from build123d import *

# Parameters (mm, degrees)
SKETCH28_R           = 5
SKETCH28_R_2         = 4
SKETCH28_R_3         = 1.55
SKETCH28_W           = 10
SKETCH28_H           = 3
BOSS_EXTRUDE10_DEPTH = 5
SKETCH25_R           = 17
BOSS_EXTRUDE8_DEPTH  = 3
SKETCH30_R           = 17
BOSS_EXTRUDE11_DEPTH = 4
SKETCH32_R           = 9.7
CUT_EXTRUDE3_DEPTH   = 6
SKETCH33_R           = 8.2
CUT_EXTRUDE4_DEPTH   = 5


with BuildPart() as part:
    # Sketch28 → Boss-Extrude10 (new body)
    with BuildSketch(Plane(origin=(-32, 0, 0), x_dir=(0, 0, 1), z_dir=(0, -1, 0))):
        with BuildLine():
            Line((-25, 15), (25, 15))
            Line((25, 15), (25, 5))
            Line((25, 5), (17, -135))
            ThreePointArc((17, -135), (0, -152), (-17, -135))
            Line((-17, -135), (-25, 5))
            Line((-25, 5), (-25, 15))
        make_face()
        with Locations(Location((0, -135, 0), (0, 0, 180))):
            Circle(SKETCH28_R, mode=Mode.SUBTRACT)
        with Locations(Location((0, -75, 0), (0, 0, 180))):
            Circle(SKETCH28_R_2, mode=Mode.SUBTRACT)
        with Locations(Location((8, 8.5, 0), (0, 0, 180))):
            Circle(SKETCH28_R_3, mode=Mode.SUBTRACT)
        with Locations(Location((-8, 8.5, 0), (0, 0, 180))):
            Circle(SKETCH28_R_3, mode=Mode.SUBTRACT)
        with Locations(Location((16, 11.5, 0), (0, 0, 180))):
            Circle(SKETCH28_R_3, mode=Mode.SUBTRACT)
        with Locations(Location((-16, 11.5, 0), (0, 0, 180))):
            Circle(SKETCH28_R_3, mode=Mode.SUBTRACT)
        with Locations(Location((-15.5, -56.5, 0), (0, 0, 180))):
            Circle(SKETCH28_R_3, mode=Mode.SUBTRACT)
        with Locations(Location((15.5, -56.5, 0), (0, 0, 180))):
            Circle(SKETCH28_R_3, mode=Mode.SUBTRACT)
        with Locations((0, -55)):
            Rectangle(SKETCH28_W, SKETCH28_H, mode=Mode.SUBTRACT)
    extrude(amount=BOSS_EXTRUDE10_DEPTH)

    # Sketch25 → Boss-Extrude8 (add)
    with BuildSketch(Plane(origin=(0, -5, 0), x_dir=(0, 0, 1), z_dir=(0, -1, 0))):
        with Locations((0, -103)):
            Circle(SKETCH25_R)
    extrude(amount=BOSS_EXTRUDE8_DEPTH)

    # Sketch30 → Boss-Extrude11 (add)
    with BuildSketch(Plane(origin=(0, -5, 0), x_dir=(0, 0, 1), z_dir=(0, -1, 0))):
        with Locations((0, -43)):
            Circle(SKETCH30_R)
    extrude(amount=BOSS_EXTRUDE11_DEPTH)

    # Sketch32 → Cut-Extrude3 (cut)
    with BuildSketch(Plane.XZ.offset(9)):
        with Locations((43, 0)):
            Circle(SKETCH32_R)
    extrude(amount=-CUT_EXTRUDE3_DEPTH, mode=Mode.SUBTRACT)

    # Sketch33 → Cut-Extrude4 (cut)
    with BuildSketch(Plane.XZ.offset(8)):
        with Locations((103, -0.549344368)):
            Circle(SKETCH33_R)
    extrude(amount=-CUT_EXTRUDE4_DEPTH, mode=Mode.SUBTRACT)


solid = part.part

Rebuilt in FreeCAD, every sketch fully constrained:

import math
import FreeCAD as App
import Part
import Sketcher
from FreeCAD import Vector
Q = App.Units.Quantity

doc = App.newDocument("Part")
body = doc.addObject("PartDesign::Body", "Body")

# Sketch on XZ plane
sketch1 = body.newObject("Sketcher::SketchObject", "Sketch")
sketch1.AttachmentSupport = (doc.getObject("XZ_Plane"), [""])
sketch1.MapMode = "FlatFace"
sketch1.addGeometry(Part.LineSegment(Vector(-47, 25, 0), Vector(-47, -25, 0)), False)
sketch1.addGeometry(Part.LineSegment(Vector(-47, -25, 0), Vector(-37, -25, 0)), False)
sketch1.addGeometry(Part.LineSegment(Vector(-37, -25, 0), Vector(103, -17, 0)), False)
sketch1.addGeometry(Part.ArcOfCircle(Part.Circle(Vector(103, 0, 0), Vector(0, 0, 1), 17), math.radians(-90), math.radians(90)), False)
sketch1.addGeometry(Part.LineSegment(Vector(103, 17, 0), Vector(-37, 25, 0)), False)
sketch1.addGeometry(Part.LineSegment(Vector(-37, 25, 0), Vector(-47, 25, 0)), False)
sketch1.addGeometry(Part.Circle(Vector(103, 0, 0), Vector(0, 0, 1), 5), False)
sketch1.addGeometry(Part.Circle(Vector(43, 0, 0), Vector(0, 0, 1), 4), False)
sketch1.addGeometry(Part.Circle(Vector(24.5, 15.5, 0), Vector(0, 0, 1), 1.6), False)
sketch1.addGeometry(Part.Circle(Vector(-43.5, 16, 0), Vector(0, 0, 1), 1.6), False)
sketch1.addGeometry(Part.Circle(Vector(-40.5, 8, 0), Vector(0, 0, 1), 1.6), False)
sketch1.addGeometry(Part.LineSegment(Vector(24.5, -5, 0), Vector(21.5, -5, 0)), False)
sketch1.addGeometry(Part.LineSegment(Vector(21.5, -5, 0), Vector(21.5, 5, 0)), False)
sketch1.addGeometry(Part.LineSegment(Vector(21.5, 5, 0), Vector(24.5, 5, 0)), False)
sketch1.addGeometry(Part.LineSegment(Vector(24.5, 5, 0), Vector(24.5, -5, 0)), False)
sketch1.addGeometry(Part.Circle(Vector(24.5, -15.5, 0), Vector(0, 0, 1), 1.6), False)
sketch1.addGeometry(Part.Circle(Vector(-40.5, -8, 0), Vector(0, 0, 1), 1.6), False)
sketch1.addGeometry(Part.Circle(Vector(-43.5, -16, 0), Vector(0, 0, 1), 1.6), False)
sketch1.addConstraint(Sketcher.Constraint("Coincident", 0, 2, 1, 1))
sketch1.addConstraint(Sketcher.Constraint("Coincident", 1, 2, 2, 1))
sketch1.addConstraint(Sketcher.Constraint("Coincident", 2, 2, 3, 1))
sketch1.addConstraint(Sketcher.Constraint("Coincident", 3, 2, 4, 1))
sketch1.addConstraint(Sketcher.Constraint("Coincident", 4, 2, 5, 1))
sketch1.addConstraint(Sketcher.Constraint("Coincident", 5, 2, 0, 1))
sketch1.addConstraint(Sketcher.Constraint("Coincident", 11, 2, 12, 1))
sketch1.addConstraint(Sketcher.Constraint("Coincident", 12, 2, 13, 1))
sketch1.addConstraint(Sketcher.Constraint("Coincident", 13, 2, 14, 1))
sketch1.addConstraint(Sketcher.Constraint("Coincident", 14, 2, 11, 1))
sketch1.addConstraint(Sketcher.Constraint("Vertical", 0))
sketch1.addConstraint(Sketcher.Constraint("Horizontal", 1))
sketch1.addConstraint(Sketcher.Constraint("Horizontal", 5))
sketch1.addConstraint(Sketcher.Constraint("Horizontal", 11))
sketch1.addConstraint(Sketcher.Constraint("Vertical", 12))
sketch1.addConstraint(Sketcher.Constraint("Horizontal", 13))
sketch1.addConstraint(Sketcher.Constraint("Vertical", 14))
sketch1.addConstraint(Sketcher.Constraint("Coincident", 6, 3, 3, 3))
sketch1.addConstraint(Sketcher.Constraint("Equal", 8, 9))
sketch1.addConstraint(Sketcher.Constraint("Equal", 9, 10))
sketch1.addConstraint(Sketcher.Constraint("Equal", 10, 15))
sketch1.addConstraint(Sketcher.Constraint("Equal", 15, 16))
sketch1.addConstraint(Sketcher.Constraint("Equal", 16, 17))
sketch1.addConstraint(Sketcher.Constraint("Symmetric", 8, 3, 15, 3, -1))
sketch1.addConstraint(Sketcher.Constraint("Symmetric", 10, 3, 16, 3, -1))
sketch1.addConstraint(Sketcher.Constraint("Symmetric", 9, 3, 17, 3, -1))
sketch1.addConstraint(Sketcher.Constraint("Symmetric", 2, 2, 3, 2, -1))
sketch1.addConstraint(Sketcher.Constraint("Symmetric", 1, 2, 4, 2, -1))
sketch1.addConstraint(Sketcher.Constraint("PointOnObject", 7, 3, -1))
sketch1.addConstraint(Sketcher.Constraint("Vertical", 6, 3, 2, 2))
sketch1.addConstraint(Sketcher.Constraint("Vertical", 15, 3, 13, 2))
sketch1.addConstraint(Sketcher.Constraint("Equal", 5, 12))
sketch1.addConstraint(Sketcher.Constraint("Diameter", 6, Q("10 mm")))
sketch1.addConstraint(Sketcher.Constraint("Diameter", 7, Q("8 mm")))
sketch1.addConstraint(Sketcher.Constraint("Radius", 3, Q("17 mm")))
sketch1.addConstraint(Sketcher.Constraint("Diameter", 8, Q("3.1 mm")))
sketch1.addConstraint(Sketcher.Constraint("DistanceX", 1, 1, 1, 2, Q("10 mm")))
sketch1.addConstraint(Sketcher.Constraint("DistanceX", 11, 2, 11, 1, Q("3 mm")))
sketch1.addConstraint(Sketcher.Constraint("DistanceY", 0, 2, 0, 1, Q("50 mm")))
sketch1.addConstraint(Sketcher.Constraint("DistanceX", -1, 1, 3, 3, Q("103 mm")))
sketch1.addConstraint(Sketcher.Constraint("DistanceX", -1, 1, 7, 3, Q("43 mm")))
sketch1.addConstraint(Sketcher.Constraint("DistanceY", -1, 1, 9, 3, Q("16 mm")))
sketch1.addConstraint(Sketcher.Constraint("DistanceY", -1, 1, 10, 3, Q("8 mm")))
sketch1.addConstraint(Sketcher.Constraint("DistanceX", 0, 2, -1, 1, Q("47 mm")))
sketch1.addConstraint(Sketcher.Constraint("DistanceY", 11, 2, -1, 1, Q("5 mm")))
sketch1.addConstraint(Sketcher.Constraint("DistanceX", 9, 3, 8, 3, Q("68 mm")))
sketch1.addConstraint(Sketcher.Constraint("DistanceX", 9, 3, 10, 3, Q("3 mm")))
sketch1.addConstraint(Sketcher.Constraint("DistanceY", 15, 3, 8, 3, Q("31 mm")))
sketch1.addConstraint(Sketcher.Constraint("DistanceX", -1, 1, 8, 3, Q("24.5 mm")))
pad1 = body.newObject("PartDesign::Pad", "Pad")
pad1.Profile = sketch1
pad1.Length = 5

# Sketch on XZ plane
sketch2 = body.newObject("Sketcher::SketchObject", "Sketch001")
sketch2.AttachmentSupport = (doc.getObject("XZ_Plane"), [""])
sketch2.MapMode = "FlatFace"
sketch2.AttachmentOffset = App.Placement(Vector(0, 0, 5), App.Rotation())
sketch2.addGeometry(Part.Circle(Vector(103, 0, 0), Vector(0, 0, 1), 17), False)
sketch2.addConstraint(Sketcher.Constraint("PointOnObject", 0, 3, -1))
sketch2.addConstraint(Sketcher.Constraint("Diameter", 0, Q("34 mm")))
sketch2.addConstraint(Sketcher.Constraint("DistanceX", -1, 1, 0, 3, Q("103 mm")))
pad2 = body.newObject("PartDesign::Pad", "Pad001")
pad2.Profile = sketch2
pad2.Length = 3

# Sketch on XZ plane
sketch3 = body.newObject("Sketcher::SketchObject", "Sketch002")
sketch3.AttachmentSupport = (doc.getObject("XZ_Plane"), [""])
sketch3.MapMode = "FlatFace"
sketch3.AttachmentOffset = App.Placement(Vector(0, 0, 5), App.Rotation())
sketch3.addGeometry(Part.Circle(Vector(43, 0, 0), Vector(0, 0, 1), 17), False)
sketch3.addConstraint(Sketcher.Constraint("PointOnObject", 0, 3, -1))
sketch3.addConstraint(Sketcher.Constraint("Diameter", 0, Q("34 mm")))
sketch3.addConstraint(Sketcher.Constraint("DistanceX", -1, 1, 0, 3, Q("43 mm")))
pad3 = body.newObject("PartDesign::Pad", "Pad002")
pad3.Profile = sketch3
pad3.Length = 4

# Sketch on XZ plane
sketch4 = body.newObject("Sketcher::SketchObject", "Sketch003")
sketch4.AttachmentSupport = (doc.getObject("XZ_Plane"), [""])
sketch4.MapMode = "FlatFace"
sketch4.AttachmentOffset = App.Placement(Vector(0, 0, 9), App.Rotation())
sketch4.addGeometry(Part.Circle(Vector(43, 0, 0), Vector(0, 0, 1), 10), False)
sketch4.addConstraint(Sketcher.Constraint("PointOnObject", 0, 3, -1))
sketch4.addConstraint(Sketcher.Constraint("Diameter", 0, Q("19.4 mm")))
sketch4.addConstraint(Sketcher.Constraint("DistanceX", -1, 1, 0, 3, Q("43 mm")))
pocket1 = body.newObject("PartDesign::Pocket", "Pocket")
pocket1.Profile = sketch4
pocket1.Length = 6

# Sketch on XZ plane
sketch5 = body.newObject("Sketcher::SketchObject", "Sketch004")
sketch5.AttachmentSupport = (doc.getObject("XZ_Plane"), [""])
sketch5.MapMode = "FlatFace"
sketch5.AttachmentOffset = App.Placement(Vector(0, 0, 8), App.Rotation())
sketch5.addGeometry(Part.Circle(Vector(103, -1, 0), Vector(0, 0, 1), 8), False)
sketch5.addConstraint(Sketcher.Constraint("Diameter", 0, Q("16.4 mm")))
sketch5.addConstraint(Sketcher.Constraint("DistanceX", -1, 1, 0, 3, Q("103 mm")))
sketch5.addConstraint(Sketcher.Constraint("DistanceY", 0, 3, -1, 1, Q("0.549344 mm")))
pocket2 = body.newObject("PartDesign::Pocket", "Pocket001")
pocket2.Profile = sketch5
pocket2.Length = 5

doc.recompute()
